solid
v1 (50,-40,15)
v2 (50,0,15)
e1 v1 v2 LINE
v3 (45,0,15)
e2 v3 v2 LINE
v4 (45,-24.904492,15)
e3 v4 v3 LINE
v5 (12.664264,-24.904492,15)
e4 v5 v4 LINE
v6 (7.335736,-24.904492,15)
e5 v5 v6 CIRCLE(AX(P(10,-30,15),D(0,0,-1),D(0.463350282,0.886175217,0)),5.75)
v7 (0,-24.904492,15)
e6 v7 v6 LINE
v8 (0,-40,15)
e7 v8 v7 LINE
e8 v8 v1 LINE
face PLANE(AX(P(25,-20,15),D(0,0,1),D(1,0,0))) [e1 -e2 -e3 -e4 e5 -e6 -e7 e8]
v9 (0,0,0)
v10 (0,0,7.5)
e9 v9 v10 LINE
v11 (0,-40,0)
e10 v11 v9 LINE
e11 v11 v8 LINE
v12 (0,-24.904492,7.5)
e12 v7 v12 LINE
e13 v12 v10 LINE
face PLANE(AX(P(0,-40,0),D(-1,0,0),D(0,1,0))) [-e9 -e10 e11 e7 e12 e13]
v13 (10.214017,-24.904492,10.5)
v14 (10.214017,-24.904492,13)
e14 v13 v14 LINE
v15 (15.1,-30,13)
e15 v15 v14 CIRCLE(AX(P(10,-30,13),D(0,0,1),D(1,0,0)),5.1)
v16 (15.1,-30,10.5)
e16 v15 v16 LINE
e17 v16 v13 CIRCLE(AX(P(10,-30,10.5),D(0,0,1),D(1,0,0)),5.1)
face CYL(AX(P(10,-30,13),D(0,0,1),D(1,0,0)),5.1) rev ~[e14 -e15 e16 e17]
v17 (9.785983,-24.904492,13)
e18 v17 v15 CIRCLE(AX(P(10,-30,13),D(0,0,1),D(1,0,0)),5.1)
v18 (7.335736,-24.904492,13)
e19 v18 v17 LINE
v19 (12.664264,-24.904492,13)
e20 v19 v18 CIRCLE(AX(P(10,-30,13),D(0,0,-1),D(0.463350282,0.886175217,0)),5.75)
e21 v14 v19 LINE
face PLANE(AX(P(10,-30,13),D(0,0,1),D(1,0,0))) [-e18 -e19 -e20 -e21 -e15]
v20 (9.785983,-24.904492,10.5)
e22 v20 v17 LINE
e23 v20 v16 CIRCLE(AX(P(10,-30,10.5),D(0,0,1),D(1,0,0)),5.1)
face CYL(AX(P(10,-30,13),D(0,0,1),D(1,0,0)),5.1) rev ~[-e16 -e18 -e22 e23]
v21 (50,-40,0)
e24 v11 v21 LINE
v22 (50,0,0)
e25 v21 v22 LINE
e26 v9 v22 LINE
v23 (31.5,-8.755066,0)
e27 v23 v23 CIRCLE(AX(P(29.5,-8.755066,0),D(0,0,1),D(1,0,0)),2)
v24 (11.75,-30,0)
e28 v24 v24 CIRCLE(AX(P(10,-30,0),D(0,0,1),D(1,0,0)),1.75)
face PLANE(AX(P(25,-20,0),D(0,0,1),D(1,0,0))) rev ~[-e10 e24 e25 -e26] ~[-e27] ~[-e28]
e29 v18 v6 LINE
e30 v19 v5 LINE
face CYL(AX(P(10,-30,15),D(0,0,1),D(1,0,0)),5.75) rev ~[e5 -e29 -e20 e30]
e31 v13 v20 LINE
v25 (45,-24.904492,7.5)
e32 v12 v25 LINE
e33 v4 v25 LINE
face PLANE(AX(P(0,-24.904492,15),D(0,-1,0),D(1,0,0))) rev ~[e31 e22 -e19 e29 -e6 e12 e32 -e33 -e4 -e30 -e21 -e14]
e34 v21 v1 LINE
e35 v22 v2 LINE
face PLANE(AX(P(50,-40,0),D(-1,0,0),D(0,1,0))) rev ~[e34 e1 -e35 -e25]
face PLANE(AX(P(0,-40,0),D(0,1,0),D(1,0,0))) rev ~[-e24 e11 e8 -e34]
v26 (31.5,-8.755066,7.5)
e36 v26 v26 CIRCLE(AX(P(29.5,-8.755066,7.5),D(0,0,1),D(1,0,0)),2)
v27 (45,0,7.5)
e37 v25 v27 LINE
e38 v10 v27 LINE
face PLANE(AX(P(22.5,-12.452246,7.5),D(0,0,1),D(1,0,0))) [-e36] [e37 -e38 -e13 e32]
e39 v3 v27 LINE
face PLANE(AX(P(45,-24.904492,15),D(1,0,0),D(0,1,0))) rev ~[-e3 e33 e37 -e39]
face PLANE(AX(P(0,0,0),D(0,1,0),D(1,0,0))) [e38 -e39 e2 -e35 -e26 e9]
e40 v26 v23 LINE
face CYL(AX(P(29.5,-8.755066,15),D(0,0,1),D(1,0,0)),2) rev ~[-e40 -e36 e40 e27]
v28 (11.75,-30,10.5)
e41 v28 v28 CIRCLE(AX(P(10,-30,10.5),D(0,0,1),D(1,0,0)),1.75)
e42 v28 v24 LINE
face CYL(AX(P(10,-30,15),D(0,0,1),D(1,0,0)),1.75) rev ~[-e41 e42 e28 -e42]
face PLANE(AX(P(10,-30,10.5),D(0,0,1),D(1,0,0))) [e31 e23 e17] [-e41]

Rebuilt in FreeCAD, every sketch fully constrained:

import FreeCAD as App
import Part
import Sketcher

V = App.Vector
Q = App.Units.Quantity


def add_polygon(sketch, points):
    """Adds a closed chain of lines whose ends are joined by coincident constraints."""
    first, n = sketch.GeometryCount, len(points)
    for a, b in zip(points, points[1:] + points[:1]):
        sketch.addGeometry(Part.LineSegment(App.Vector(*a, 0), App.Vector(*b, 0)), False)
    for i in range(n):
        sketch.addConstraint(Sketcher.Constraint("Coincident", first + i, 2, first + (i + 1) % n, 1))

doc = App.newDocument("Part")
body = doc.addObject("PartDesign::Body", "Body")

# Sketch on XY plane
sketch1 = doc.addObject("Sketcher::SketchObject", "Sketch")
body.addObject(sketch1)
sketch1.AttachmentSupport = (doc.XY_Plane, [""])
sketch1.MapMode = "FlatFace"
add_polygon(sketch1, [(0, 0), (0, -40), (50, -40), (50, 0)])  # lines 0-3
sketch1.addConstraint(Sketcher.Constraint("Vertical", 0))
sketch1.addConstraint(Sketcher.Constraint("Horizontal", 1))
sketch1.addConstraint(Sketcher.Constraint("Vertical", 2))
sketch1.addConstraint(Sketcher.Constraint("Horizontal", 3))
sketch1.addConstraint(Sketcher.Constraint("Coincident", 3, 2, -1, 1))
sketch1.addConstraint(Sketcher.Constraint("DistanceX", 1, 1, 1, 2, Q("50 mm")))
sketch1.addConstraint(Sketcher.Constraint("DistanceY", 0, 2, 0, 1, Q("40 mm")))
pad1 = doc.addObject("PartDesign::Pad", "Pad")
body.addObject(pad1)
pad1.Profile = sketch1
pad1.Length = 15

# Sketch on XY plane
sketch2 = doc.addObject("Sketcher::SketchObject", "Sketch001")
body.addObject(sketch2)
sketch2.AttachmentSupport = (doc.XY_Plane, [""])
sketch2.MapMode = "FlatFace"
sketch2.AttachmentOffset = App.Placement(V(0, 0, 15), App.Rotation())
sketch2.addGeometry(Part.Circle(V(10, -30, 0), V(0, 0, 1), 6), False)
sketch2.addConstraint(Sketcher.Constraint("Diameter", 0, Q("11.5 mm")))
sketch2.addConstraint(Sketcher.Constraint("DistanceX", -1, 1, 0, 3, Q("10 mm")))
sketch2.addConstraint(Sketcher.Constraint("DistanceY", 0, 3, -1, 1, Q("30 mm")))
pocket1 = doc.addObject("PartDesign::Pocket", "Pocket")
body.addObject(pocket1)
pocket1.Profile = sketch2
pocket1.Length = 2

# Sketch on XY plane
sketch3 = doc.addObject("Sketcher::SketchObject", "Sketch002")
body.addObject(sketch3)
sketch3.AttachmentSupport = (doc.XY_Plane, [""])
sketch3.MapMode = "FlatFace"
sketch3.AttachmentOffset = App.Placement(V(0, 0, 15), App.Rotation())
sketch3.addGeometry(Part.Circle(V(29.5, -8.8, 0), V(0, 0, 1), 2), False)
sketch3.addConstraint(Sketcher.Constraint("Diameter", 0, Q("4 mm")))
sketch3.addConstraint(Sketcher.Constraint("DistanceX", -1, 1, 0, 3, Q("29.5 mm")))
sketch3.addConstraint(Sketcher.Constraint("DistanceY", 0, 3, -1, 1, Q("8.755066 mm")))
pocket2 = doc.addObject("PartDesign::Pocket", "Pocket001")
body.addObject(pocket2)
pocket2.Profile = sketch3
pocket2.Type = "ThroughAll"

# Sketch on XY plane
sketch4 = doc.addObject("Sketcher::SketchObject", "Sketch003")
body.addObject(sketch4)
sketch4.AttachmentSupport = (doc.XY_Plane, [""])
sketch4.MapMode = "FlatFace"
sketch4.AttachmentOffset = App.Placement(V(0, 0, 15), App.Rotation())
add_polygon(sketch4, [(0, 0), (0, -25), (45, -25), (45, 0)])  # lines 0-3
sketch4.addConstraint(Sketcher.Constraint("Vertical", 0))
sketch4.addConstraint(Sketcher.Constraint("Horizontal", 1))
sketch4.addConstraint(Sketcher.Constraint("Vertical", 2))
sketch4.addConstraint(Sketcher.Constraint("Horizontal", 3))
sketch4.addConstraint(Sketcher.Constraint("Coincident", 3, 2, -1, 1))
sketch4.addConstraint(Sketcher.Constraint("DistanceX", 1, 1, 1, 2, Q("45 mm")))
sketch4.addConstraint(Sketcher.Constraint("DistanceY", 0, 2, 0, 1, Q("24.904493 mm")))
pocket3 = doc.addObject("PartDesign::Pocket", "Pocket002")
body.addObject(pocket3)
pocket3.Profile = sketch4
pocket3.Length = 7.5

# Sketch on XY plane
sketch5 = doc.addObject("Sketcher::SketchObject", "Sketch004")
body.addObject(sketch5)
sketch5.AttachmentSupport = (doc.XY_Plane, [""])
sketch5.MapMode = "FlatFace"
sketch5.AttachmentOffset = App.Placement(V(0, 0, 13), App.Rotation())
sketch5.addGeometry(Part.Circle(V(10, -30, 0), V(0, 0, 1), 5), False)
sketch5.addConstraint(Sketcher.Constraint("Diameter", 0, Q("10.2 mm")))
sketch5.addConstraint(Sketcher.Constraint("DistanceX", -1, 1, 0, 3, Q("10 mm")))
sketch5.addConstraint(Sketcher.Constraint("DistanceY", 0, 3, -1, 1, Q("30 mm")))
pocket4 = doc.addObject("PartDesign::Pocket", "Pocket003")
body.addObject(pocket4)
pocket4.Profile = sketch5
pocket4.Length = 2.5

# Sketch on XY plane
sketch6 = doc.addObject("Sketcher::SketchObject", "Sketch005")
body.addObject(sketch6)
sketch6.AttachmentSupport = (doc.XY_Plane, [""])
sketch6.MapMode = "FlatFace"
sketch6.AttachmentOffset = App.Placement(V(0, 0, 15), App.Rotation())
sketch6.addGeometry(Part.Circle(V(10, -30, 0), V(0, 0, 1), 1.8), False)
sketch6.addConstraint(Sketcher.Constraint("Diameter", 0, Q("3.5 mm")))
sketch6.addConstraint(Sketcher.Constraint("DistanceX", -1, 1, 0, 3, Q("10 mm")))
sketch6.addConstraint(Sketcher.Constraint("DistanceY", 0, 3, -1, 1, Q("30 mm")))
pocket5 = doc.addObject("PartDesign::Pocket", "Pocket004")
body.addObject(pocket5)
pocket5.Profile = sketch6
pocket5.Type = "ThroughAll"

doc.recompute()
